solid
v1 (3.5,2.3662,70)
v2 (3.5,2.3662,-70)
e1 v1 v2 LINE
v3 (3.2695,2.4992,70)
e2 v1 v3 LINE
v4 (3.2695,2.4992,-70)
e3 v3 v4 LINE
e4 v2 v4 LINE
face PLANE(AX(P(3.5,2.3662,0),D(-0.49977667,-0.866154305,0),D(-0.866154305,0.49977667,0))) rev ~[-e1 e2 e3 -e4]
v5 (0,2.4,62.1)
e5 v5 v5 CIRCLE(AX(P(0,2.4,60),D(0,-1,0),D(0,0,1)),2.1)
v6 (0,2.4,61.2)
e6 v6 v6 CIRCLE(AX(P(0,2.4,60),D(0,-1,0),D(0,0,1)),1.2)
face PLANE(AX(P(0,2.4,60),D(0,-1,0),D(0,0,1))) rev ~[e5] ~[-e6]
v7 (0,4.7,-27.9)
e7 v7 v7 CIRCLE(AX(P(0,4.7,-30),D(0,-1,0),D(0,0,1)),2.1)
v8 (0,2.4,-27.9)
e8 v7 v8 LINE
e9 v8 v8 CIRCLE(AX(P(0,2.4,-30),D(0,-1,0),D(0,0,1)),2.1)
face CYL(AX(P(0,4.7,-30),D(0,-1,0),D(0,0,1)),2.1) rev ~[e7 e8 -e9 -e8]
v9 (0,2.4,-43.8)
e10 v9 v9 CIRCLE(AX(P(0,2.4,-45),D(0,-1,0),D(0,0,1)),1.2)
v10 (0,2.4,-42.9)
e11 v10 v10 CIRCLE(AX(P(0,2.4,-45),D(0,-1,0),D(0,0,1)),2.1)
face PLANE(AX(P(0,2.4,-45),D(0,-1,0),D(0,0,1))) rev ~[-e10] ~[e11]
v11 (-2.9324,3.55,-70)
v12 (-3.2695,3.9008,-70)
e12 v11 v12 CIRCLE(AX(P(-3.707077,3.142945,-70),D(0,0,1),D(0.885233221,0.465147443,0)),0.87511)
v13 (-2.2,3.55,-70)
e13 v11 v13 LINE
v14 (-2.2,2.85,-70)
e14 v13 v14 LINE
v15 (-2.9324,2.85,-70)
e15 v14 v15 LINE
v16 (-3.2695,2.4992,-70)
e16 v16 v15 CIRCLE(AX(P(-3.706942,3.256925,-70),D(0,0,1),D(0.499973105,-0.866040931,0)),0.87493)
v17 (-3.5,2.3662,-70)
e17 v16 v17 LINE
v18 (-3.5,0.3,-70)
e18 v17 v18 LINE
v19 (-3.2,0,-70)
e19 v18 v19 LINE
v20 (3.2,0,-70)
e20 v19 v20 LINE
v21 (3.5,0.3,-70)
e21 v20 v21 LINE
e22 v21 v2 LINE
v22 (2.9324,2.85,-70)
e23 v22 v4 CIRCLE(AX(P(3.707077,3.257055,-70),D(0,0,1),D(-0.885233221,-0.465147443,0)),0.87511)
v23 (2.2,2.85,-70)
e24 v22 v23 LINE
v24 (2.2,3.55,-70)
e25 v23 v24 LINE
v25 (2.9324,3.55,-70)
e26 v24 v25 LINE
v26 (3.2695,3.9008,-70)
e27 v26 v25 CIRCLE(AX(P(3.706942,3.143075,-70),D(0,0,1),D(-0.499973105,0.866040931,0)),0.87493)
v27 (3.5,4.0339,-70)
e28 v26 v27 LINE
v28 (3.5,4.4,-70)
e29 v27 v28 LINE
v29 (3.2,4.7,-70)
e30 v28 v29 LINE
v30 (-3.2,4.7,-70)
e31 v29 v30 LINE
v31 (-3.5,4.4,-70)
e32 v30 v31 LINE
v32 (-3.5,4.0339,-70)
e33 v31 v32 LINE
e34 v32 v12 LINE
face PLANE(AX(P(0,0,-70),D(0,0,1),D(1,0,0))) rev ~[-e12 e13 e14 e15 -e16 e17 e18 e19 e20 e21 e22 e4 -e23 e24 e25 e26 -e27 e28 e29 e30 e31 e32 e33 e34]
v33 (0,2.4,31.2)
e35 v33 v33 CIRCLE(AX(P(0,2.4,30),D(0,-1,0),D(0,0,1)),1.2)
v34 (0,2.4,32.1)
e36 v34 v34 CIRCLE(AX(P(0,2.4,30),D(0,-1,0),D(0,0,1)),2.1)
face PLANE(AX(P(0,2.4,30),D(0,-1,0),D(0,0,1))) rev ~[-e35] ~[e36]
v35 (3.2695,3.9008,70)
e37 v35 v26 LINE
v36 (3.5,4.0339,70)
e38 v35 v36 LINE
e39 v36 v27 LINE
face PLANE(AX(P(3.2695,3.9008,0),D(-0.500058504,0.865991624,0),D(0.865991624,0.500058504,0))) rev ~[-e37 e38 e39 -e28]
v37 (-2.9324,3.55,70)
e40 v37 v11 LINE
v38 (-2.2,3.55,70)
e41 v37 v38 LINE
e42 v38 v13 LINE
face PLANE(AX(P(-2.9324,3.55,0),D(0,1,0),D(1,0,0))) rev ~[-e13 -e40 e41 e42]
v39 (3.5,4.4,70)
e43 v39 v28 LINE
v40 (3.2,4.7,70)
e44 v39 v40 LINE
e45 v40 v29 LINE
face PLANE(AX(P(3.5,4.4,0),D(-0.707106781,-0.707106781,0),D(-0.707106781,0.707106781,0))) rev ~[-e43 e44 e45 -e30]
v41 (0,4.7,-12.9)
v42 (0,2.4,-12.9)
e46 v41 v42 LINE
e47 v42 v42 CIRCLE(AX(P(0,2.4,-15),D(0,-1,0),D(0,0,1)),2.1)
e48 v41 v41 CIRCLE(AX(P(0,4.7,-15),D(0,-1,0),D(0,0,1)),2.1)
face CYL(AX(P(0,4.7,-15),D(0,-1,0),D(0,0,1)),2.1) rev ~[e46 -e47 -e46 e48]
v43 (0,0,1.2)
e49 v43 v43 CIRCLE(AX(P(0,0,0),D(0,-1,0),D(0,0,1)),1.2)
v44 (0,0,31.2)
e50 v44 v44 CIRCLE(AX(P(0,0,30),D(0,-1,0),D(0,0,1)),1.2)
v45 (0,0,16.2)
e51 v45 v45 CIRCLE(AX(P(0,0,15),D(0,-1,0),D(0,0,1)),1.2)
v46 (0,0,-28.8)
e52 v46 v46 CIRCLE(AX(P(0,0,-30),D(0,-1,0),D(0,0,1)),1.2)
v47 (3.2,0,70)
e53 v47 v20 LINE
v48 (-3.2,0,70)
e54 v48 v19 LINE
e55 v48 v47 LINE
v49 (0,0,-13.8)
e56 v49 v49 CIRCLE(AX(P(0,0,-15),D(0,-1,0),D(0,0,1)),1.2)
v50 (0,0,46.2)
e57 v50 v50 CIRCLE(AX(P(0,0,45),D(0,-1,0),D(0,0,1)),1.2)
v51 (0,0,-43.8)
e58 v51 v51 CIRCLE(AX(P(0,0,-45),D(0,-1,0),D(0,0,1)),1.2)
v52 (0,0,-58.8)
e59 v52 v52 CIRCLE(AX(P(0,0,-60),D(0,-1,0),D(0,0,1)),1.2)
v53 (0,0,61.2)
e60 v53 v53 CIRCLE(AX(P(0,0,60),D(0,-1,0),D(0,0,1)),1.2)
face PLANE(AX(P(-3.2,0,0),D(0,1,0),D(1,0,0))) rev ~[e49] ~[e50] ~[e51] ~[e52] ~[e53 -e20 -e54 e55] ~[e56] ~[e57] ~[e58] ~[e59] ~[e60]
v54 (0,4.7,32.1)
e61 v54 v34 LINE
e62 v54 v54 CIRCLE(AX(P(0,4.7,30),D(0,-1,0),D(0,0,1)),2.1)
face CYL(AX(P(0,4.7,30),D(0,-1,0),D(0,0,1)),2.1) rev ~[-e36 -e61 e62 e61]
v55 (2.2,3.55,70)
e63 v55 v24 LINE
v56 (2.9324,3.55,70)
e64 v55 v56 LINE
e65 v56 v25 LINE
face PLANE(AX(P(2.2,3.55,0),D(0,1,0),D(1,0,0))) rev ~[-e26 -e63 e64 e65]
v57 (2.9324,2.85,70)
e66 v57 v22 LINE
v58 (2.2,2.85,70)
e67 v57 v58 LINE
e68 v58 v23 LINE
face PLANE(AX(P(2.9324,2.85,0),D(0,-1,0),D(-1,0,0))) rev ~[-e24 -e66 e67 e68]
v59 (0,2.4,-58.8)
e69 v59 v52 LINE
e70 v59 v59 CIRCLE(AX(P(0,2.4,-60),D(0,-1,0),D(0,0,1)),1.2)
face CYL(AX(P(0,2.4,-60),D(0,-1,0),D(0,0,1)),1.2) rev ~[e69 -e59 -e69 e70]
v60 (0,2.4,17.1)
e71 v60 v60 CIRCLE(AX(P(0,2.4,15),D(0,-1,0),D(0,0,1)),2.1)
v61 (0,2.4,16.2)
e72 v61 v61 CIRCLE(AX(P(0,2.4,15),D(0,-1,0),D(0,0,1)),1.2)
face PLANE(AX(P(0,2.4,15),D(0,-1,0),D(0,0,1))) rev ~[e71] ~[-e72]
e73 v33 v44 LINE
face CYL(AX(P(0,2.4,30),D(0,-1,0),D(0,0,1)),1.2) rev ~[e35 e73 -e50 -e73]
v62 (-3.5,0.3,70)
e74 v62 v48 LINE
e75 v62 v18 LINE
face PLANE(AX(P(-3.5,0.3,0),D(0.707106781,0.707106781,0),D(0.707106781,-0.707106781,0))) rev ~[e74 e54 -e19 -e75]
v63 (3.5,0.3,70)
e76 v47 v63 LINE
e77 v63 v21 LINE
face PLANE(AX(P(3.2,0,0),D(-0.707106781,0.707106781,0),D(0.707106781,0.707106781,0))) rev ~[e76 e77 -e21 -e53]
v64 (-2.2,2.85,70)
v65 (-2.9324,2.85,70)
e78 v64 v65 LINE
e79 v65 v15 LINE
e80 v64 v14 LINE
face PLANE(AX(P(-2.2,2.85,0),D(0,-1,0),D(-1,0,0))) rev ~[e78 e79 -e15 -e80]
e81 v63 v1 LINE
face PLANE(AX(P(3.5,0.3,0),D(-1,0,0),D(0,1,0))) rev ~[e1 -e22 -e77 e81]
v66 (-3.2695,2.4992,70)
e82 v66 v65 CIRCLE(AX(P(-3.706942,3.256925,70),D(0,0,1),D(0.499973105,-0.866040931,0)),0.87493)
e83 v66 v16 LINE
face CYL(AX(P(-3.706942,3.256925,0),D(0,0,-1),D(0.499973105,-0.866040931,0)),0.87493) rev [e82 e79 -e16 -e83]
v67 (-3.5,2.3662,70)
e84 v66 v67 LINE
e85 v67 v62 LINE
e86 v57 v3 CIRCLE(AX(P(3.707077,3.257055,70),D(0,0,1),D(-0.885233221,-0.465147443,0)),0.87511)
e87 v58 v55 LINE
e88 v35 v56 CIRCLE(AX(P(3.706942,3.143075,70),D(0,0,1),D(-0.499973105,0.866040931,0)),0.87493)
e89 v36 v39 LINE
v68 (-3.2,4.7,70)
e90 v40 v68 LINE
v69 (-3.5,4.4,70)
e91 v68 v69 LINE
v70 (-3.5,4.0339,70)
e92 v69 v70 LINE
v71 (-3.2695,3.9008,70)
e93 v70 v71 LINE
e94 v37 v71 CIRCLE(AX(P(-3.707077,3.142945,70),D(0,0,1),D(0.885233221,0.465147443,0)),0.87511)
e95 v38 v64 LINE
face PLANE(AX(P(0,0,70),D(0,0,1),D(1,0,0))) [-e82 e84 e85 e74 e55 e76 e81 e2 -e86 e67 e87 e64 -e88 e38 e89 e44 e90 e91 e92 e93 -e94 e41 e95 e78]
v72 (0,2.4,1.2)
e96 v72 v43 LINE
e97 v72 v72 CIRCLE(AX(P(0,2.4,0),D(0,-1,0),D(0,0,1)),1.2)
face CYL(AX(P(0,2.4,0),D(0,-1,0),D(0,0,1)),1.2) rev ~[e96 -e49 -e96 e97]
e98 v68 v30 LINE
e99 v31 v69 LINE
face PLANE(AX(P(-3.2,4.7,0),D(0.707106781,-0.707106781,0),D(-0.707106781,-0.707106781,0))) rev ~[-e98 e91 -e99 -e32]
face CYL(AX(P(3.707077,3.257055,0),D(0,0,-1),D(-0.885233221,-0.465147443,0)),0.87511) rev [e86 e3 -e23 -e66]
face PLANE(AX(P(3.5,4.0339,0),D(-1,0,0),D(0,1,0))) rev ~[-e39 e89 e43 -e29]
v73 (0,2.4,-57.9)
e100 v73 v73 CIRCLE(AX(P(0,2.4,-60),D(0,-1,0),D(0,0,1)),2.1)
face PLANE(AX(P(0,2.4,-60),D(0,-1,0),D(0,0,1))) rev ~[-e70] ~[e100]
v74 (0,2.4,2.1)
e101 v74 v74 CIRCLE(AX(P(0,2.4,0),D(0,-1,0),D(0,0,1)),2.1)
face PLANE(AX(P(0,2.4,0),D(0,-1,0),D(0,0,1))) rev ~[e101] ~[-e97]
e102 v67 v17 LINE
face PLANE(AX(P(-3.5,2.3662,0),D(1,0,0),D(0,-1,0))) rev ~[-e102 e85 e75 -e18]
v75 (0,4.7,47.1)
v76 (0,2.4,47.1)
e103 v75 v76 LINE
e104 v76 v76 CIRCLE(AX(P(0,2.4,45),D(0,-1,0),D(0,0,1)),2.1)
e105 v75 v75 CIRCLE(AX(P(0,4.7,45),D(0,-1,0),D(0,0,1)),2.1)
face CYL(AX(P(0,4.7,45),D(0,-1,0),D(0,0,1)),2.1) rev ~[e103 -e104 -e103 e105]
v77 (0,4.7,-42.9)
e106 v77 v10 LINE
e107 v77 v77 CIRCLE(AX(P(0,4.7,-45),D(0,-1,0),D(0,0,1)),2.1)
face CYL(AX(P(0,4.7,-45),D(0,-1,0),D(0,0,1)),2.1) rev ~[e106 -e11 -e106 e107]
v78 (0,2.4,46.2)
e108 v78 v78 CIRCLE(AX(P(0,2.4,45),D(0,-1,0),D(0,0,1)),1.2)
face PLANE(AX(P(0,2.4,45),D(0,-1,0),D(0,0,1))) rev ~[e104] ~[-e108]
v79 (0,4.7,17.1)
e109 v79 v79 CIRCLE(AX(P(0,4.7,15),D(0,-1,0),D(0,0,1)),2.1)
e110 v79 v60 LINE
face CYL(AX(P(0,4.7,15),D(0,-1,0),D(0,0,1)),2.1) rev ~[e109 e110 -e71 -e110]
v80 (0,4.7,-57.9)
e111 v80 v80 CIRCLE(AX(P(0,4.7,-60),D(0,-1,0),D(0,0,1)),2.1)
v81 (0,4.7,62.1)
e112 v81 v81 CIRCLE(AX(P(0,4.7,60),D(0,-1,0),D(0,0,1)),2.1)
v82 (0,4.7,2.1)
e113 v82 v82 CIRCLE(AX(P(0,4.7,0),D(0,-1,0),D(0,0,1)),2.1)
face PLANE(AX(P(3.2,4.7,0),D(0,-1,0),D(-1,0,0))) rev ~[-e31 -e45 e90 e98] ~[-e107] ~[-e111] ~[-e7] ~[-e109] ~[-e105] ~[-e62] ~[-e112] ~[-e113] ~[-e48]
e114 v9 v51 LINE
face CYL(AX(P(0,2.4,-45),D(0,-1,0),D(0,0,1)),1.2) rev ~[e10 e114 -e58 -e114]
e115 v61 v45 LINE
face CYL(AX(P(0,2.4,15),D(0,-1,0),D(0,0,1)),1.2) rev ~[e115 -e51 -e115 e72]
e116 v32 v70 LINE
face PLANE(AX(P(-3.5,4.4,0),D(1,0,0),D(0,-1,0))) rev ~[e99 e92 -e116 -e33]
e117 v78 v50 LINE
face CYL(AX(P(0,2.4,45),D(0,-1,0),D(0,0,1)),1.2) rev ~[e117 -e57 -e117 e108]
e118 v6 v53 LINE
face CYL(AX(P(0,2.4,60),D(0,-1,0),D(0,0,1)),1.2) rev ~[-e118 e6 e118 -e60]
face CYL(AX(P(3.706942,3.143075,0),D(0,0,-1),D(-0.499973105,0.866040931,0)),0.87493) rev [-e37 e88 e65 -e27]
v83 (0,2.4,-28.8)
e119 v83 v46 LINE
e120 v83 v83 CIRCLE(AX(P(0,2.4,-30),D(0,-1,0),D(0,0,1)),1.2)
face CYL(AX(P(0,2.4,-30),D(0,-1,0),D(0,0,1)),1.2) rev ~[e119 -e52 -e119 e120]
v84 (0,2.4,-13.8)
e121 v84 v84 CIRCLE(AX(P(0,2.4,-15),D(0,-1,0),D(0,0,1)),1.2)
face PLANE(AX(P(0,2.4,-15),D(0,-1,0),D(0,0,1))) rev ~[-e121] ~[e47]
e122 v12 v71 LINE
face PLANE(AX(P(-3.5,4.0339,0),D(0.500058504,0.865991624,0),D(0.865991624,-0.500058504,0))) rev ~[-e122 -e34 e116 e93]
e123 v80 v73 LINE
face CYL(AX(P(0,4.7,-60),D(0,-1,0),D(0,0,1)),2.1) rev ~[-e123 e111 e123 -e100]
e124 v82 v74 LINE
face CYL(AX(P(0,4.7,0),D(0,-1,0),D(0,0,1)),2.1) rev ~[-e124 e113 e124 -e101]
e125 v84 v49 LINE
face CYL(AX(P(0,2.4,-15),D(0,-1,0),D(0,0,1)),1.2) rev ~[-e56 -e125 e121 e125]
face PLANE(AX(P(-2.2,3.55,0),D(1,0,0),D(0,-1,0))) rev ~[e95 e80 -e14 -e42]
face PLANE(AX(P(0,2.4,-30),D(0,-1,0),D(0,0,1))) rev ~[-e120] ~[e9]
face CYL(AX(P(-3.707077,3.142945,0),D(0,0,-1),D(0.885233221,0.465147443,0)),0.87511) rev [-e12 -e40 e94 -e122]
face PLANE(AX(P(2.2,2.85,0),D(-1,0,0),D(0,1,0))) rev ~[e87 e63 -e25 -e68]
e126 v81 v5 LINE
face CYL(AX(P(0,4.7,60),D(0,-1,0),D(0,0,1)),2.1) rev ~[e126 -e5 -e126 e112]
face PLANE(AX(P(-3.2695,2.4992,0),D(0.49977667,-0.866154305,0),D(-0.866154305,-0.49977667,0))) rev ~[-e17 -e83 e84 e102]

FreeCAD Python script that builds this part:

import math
import FreeCAD as App
import Part
import Sketcher
Q = App.Units.Quantity

doc = App.newDocument("Part")
params = doc.addObject("Spreadsheet::Sheet", "Params")
for row, (alias, value) in enumerate([
    ("sketch1_width", "6.4 mm"),
    ("sketch1_height", "0.7 mm"),
    ("pad1_length", "140 mm"),
    ("sketch2_diameter", "2.4 mm"),
    ("hole_diameter", "2.4 mm"),
    ("hole_depth", "4.7 mm"),
    ("hole_cbore_diameter", "4.2 mm"),
    ("hole_cbore_depth", "2.3 mm"),
    ("linearpattern_pitch", "15 mm"),
], start=1):
    params.set(f"A{row}", alias)
    params.set(f"B{row}", "=" + value)
    params.setAlias(f"B{row}", alias)

body = doc.addObject("PartDesign::Body", "Body")

sketch1 = body.newObject("Sketcher::SketchObject", "Sketch")
sketch1.AttachmentSupport = (doc.getObject("XY_Plane"), [""])
sketch1.MapMode = "FlatFace"
sketch1.addGeometry(Part.LineSegment(App.Vector(-3.2, 4.7, 0), App.Vector(-3.5, 4.4, 0)), False)
sketch1.addGeometry(Part.LineSegment(App.Vector(-3.5, 4.4, 0), App.Vector(-3.5, 4.03, 0)), False)
sketch1.addGeometry(Part.LineSegment(App.Vector(-3.5, 4.03, 0), App.Vector(-3.27, 3.9, 0)), False)
sketch1.addGeometry(Part.ArcOfCircle(Part.Circle(App.Vector(-3.71, 3.14, 0), App.Vector(0, 0, 1), 0.88), math.radians(28), math.radians(60)), False)
sketch1.addGeometry(Part.LineSegment(App.Vector(-2.93, 3.55, 0), App.Vector(-2.2, 3.55, 0)), False)
sketch1.addGeometry(Part.LineSegment(App.Vector(-2.2, 3.55, 0), App.Vector(-2.2, 2.85, 0)), False)
sketch1.addGeometry(Part.LineSegment(App.Vector(-2.2, 2.85, 0), App.Vector(-2.93, 2.85, 0)), False)
sketch1.addGeometry(Part.ArcOfCircle(Part.Circle(App.Vector(-3.71, 3.26, 0), App.Vector(0, 0, 1), 0.88), math.radians(-60), math.radians(-28)), False)
sketch1.addGeometry(Part.LineSegment(App.Vector(-3.27, 2.5, 0), App.Vector(-3.5, 2.37, 0)), False)
sketch1.addGeometry(Part.LineSegment(App.Vector(-3.5, 2.37, 0), App.Vector(-3.5, 0.3, 0)), False)
sketch1.addGeometry(Part.LineSegment(App.Vector(-3.5, 0.3, 0), App.Vector(-3.2, 0, 0)), False)
sketch1.addGeometry(Part.LineSegment(App.Vector(-3.2, 0, 0), App.Vector(3.2, 0, 0)), False)
sketch1.addGeometry(Part.LineSegment(App.Vector(3.2, 0, 0), App.Vector(3.5, 0.3, 0)), False)
sketch1.addGeometry(Part.LineSegment(App.Vector(3.5, 0.3, 0), App.Vector(3.5, 2.37, 0)), False)
sketch1.addGeometry(Part.LineSegment(App.Vector(3.5, 2.37, 0), App.Vector(3.27, 2.5, 0)), False)
sketch1.addGeometry(Part.ArcOfCircle(Part.Circle(App.Vector(3.71, 3.26, 0), App.Vector(0, 0, 1), 0.88), math.radians(-152), math.radians(-120)), False)
sketch1.addGeometry(Part.LineSegment(App.Vector(2.93, 2.85, 0), App.Vector(2.2, 2.85, 0)), False)
sketch1.addGeometry(Part.LineSegment(App.Vector(2.2, 2.85, 0), App.Vector(2.2, 3.55, 0)), False)
sketch1.addGeometry(Part.LineSegment(App.Vector(2.2, 3.55, 0), App.Vector(2.93, 3.55, 0)), False)
sketch1.addGeometry(Part.ArcOfCircle(Part.Circle(App.Vector(3.71, 3.14, 0), App.Vector(0, 0, 1), 0.88), math.radians(120), math.radians(152)), False)
sketch1.addGeometry(Part.LineSegment(App.Vector(3.27, 3.9, 0), App.Vector(3.5, 4.03, 0)), False)
sketch1.addGeometry(Part.LineSegment(App.Vector(3.5, 4.03, 0), App.Vector(3.5, 4.4, 0)), False)
sketch1.addGeometry(Part.LineSegment(App.Vector(3.5, 4.4, 0), App.Vector(3.2, 4.7, 0)), False)
sketch1.addGeometry(Part.LineSegment(App.Vector(3.2, 4.7, 0), App.Vector(-3.2, 4.7, 0)), False)
sketch1.addConstraint(Sketcher.Constraint("Coincident", 0, 2, 1, 1))
sketch1.addConstraint(Sketcher.Constraint("Coincident", 1, 2, 2, 1))
sketch1.addConstraint(Sketcher.Constraint("Tangent", 2, 2, 3, 2))
sketch1.addConstraint(Sketcher.Constraint("Coincident", 3, 1, 4, 1))
sketch1.addConstraint(Sketcher.Constraint("Coincident", 4, 2, 5, 1))
sketch1.addConstraint(Sketcher.Constraint("Coincident", 5, 2, 6, 1))
sketch1.addConstraint(Sketcher.Constraint("Coincident", 6, 2, 7, 2))
sketch1.addConstraint(Sketcher.Constraint("Tangent", 7, 1, 8, 1))
sketch1.addConstraint(Sketcher.Constraint("Coincident", 8, 2, 9, 1))
sketch1.addConstraint(Sketcher.Constraint("Coincident", 9, 2, 10, 1))
sketch1.addConstraint(Sketcher.Constraint("Coincident", 10, 2, 11, 1))
sketch1.addConstraint(Sketcher.Constraint("Coincident", 11, 2, 12, 1))
sketch1.addConstraint(Sketcher.Constraint("Coincident", 12, 2, 13, 1))
sketch1.addConstraint(Sketcher.Constraint("Coincident", 13, 2, 14, 1))
sketch1.addConstraint(Sketcher.Constraint("Tangent", 14, 2, 15, 2))
sketch1.addConstraint(Sketcher.Constraint("Coincident", 15, 1, 16, 1))
sketch1.addConstraint(Sketcher.Constraint("Coincident", 16, 2, 17, 1))
sketch1.addConstraint(Sketcher.Constraint("Coincident", 17, 2, 18, 1))
sketch1.addConstraint(Sketcher.Constraint("Coincident", 18, 2, 19, 2))
sketch1.addConstraint(Sketcher.Constraint("Tangent", 19, 1, 20, 1))
sketch1.addConstraint(Sketcher.Constraint("Coincident", 20, 2, 21, 1))
sketch1.addConstraint(Sketcher.Constraint("Coincident", 21, 2, 22, 1))
sketch1.addConstraint(Sketcher.Constraint("Coincident", 22, 2, 23, 1))
sketch1.addConstraint(Sketcher.Constraint("Coincident", 23, 2, 0, 1))
sketch1.addConstraint(Sketcher.Constraint("Vertical", 1))
sketch1.addConstraint(Sketcher.Constraint("Horizontal", 4))
sketch1.addConstraint(Sketcher.Constraint("Vertical", 5))
sketch1.addConstraint(Sketcher.Constraint("Horizontal", 6))
sketch1.addConstraint(Sketcher.Constraint("Vertical", 9))
sketch1.addConstraint(Sketcher.Constraint("Horizontal", 11))
sketch1.addConstraint(Sketcher.Constraint("Vertical", 13))
sketch1.addConstraint(Sketcher.Constraint("Horizontal", 16))
sketch1.addConstraint(Sketcher.Constraint("Vertical", 17))
sketch1.addConstraint(Sketcher.Constraint("Horizontal", 18))
sketch1.addConstraint(Sketcher.Constraint("Vertical", 21))
sketch1.addConstraint(Sketcher.Constraint("Horizontal", 23))
sketch1.addConstraint(Sketcher.Constraint("Equal", 3, 7))
sketch1.addConstraint(Sketcher.Constraint("Equal", 7, 15))
sketch1.addConstraint(Sketcher.Constraint("Equal", 15, 19))
sketch1.addConstraint(Sketcher.Constraint("Symmetric", 10, 2, 11, 2, -1, 1))
sketch1.addConstraint(Sketcher.Constraint("Symmetric", 7, 3, 15, 3, -2))
sketch1.addConstraint(Sketcher.Constraint("Symmetric", 3, 3, 19, 3, -2))
sketch1.addConstraint(Sketcher.Constraint("Symmetric", 9, 2, 12, 2, -2))
sketch1.addConstraint(Sketcher.Constraint("Symmetric", 5, 2, 16, 2, -2))
sketch1.addConstraint(Sketcher.Constraint("Symmetric", 1, 2, 20, 2, -2))
sketch1.addConstraint(Sketcher.Constraint("Perpendicular", 0, 10))
sketch1.addConstraint(Sketcher.Constraint("Perpendicular", 10, 12))
sketch1.addConstraint(Sketcher.Constraint("Parallel", 2, 14))
sketch1.addConstraint(Sketcher.Constraint("Parallel", 8, 20))
sketch1.addConstraint(Sketcher.Constraint("Perpendicular", 12, 22))
sketch1.addConstraint(Sketcher.Constraint("Horizontal", 4, 2, 17, 2))
sketch1.addConstraint(Sketcher.Constraint("Horizontal", 0, 2, 21, 2))
sketch1.addConstraint(Sketcher.Constraint("Vertical", 3, 3, 7, 3))
sketch1.addConstraint(Sketcher.Constraint("Vertical", 3, 1, 6, 2))
sketch1.addConstraint(Sketcher.Constraint("Vertical", 1, 2, 8, 2))
sketch1.addConstraint(Sketcher.Constraint("Vertical", 11, 2, 22, 2))
sketch1.addConstraint(Sketcher.Constraint("DistanceX", 11, 1, 11, 2, Q("6.4 mm")))
sketch1.addConstraint(Sketcher.Constraint("DistanceY", 5, 2, 5, 1, Q("0.7 mm")))
sketch1.addConstraint(Sketcher.Constraint("Radius", 3, Q("0.875 mm")))
sketch1.addConstraint(Sketcher.Constraint("DistanceX", 10, 2, 5, 2, Q("1 mm")))
sketch1.addConstraint(Sketcher.Constraint("DistanceX", 0, 2, -1, 1, Q("3.5 mm")))
sketch1.addConstraint(Sketcher.Constraint("DistanceY", -1, 1, 0, 2, Q("4.4 mm")))
sketch1.addConstraint(Sketcher.Constraint("DistanceY", 1, 2, 1, 1, Q("0.366 mm")))
sketch1.addConstraint(Sketcher.Constraint("DistanceY", -1, 1, 3, 1, Q("3.55 mm")))
sketch1.addConstraint(Sketcher.Constraint("Distance", 8, Q("0.266 mm")))
sketch1.addConstraint(Sketcher.Constraint("DistanceX", 4, 1, 4, 2, Q("0.7324 mm")))
sketch1.setExpression("Constraints[56]", "Params.sketch1_width")
sketch1.setExpression("Constraints[57]", "Params.sketch1_height")
pad1 = body.newObject("PartDesign::Pad", "Pad")
pad1.Profile = sketch1
pad1.setExpression("Length", "Params.pad1_length")
pad1.Midplane = True

sketch2 = body.newObject("Sketcher::SketchObject", "Sketch001")
sketch2.AttachmentSupport = (doc.getObject("XZ_Plane"), [""])
sketch2.MapMode = "FlatFace"
sketch2.AttachmentOffset = App.Placement(App.Vector(0, 0, -4.7), App.Rotation())
sketch2.addGeometry(Part.Circle(App.Vector(0, -60, 0), App.Vector(0, 0, 1), 1.2), False)
sketch2.addConstraint(Sketcher.Constraint("PointOnObject", 0, 3, -2))
sketch2.addConstraint(Sketcher.Constraint("Diameter", 0, Q("2.4 mm")))
sketch2.addConstraint(Sketcher.Constraint("DistanceY", 0, 3, -1, 1, Q("60 mm")))
sketch2.setExpression("Constraints[1]", "Params.sketch2_diameter")
doc.recompute()
hole = body.newObject("PartDesign::Hole", "Hole")
hole.Profile = sketch2
hole.ThreadType = "None"
hole.setExpression("Diameter", "Params.hole_diameter")
hole.DepthType = "Dimension"
hole.setExpression("Depth", "Params.hole_depth")
hole.DrillPoint = "Flat"
hole.HoleCutType = "Counterbore"
hole.setExpression("HoleCutDiameter", "Params.hole_cbore_diameter")
hole.setExpression("HoleCutDepth", "Params.hole_cbore_depth")
hole.Reversed = True
doc.recompute()

linearpattern = body.newObject("PartDesign::LinearPattern", "LinearPattern")
linearpattern.Originals = [hole]
linearpattern.Direction = (doc.getObject("Z_Axis"), [""])
linearpattern.Mode = "offset"
linearpattern.setExpression("Offset", "Params.linearpattern_pitch")
linearpattern.Occurrences = 9
body.Tip = linearpattern

doc.recompute()
